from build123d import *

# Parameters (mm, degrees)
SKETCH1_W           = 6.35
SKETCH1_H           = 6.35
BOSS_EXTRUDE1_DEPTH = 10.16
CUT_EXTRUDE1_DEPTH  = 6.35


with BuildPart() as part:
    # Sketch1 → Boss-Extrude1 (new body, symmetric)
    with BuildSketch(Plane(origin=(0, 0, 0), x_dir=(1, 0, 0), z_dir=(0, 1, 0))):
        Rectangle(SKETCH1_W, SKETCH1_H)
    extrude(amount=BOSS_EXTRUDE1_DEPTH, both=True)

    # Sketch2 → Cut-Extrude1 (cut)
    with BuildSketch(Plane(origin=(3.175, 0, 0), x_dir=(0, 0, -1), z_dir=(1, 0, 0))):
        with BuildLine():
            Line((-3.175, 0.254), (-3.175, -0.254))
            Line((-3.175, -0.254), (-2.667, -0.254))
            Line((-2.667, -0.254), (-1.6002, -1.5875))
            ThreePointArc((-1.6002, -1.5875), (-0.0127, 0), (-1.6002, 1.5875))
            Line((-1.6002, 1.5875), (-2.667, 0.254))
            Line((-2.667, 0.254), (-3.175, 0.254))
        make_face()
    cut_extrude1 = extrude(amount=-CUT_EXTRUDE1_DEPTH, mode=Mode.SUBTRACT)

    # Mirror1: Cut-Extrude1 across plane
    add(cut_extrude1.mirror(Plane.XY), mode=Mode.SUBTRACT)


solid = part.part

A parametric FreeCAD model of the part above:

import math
import FreeCAD as App
import Part
import Sketcher
from FreeCAD import Vector
Q = App.Units.Quantity


def add_polygon(sketch, points):
    """Adds a closed chain of lines whose ends are joined by coincident constraints."""
    first, n = sketch.GeometryCount, len(points)
    for a, b in zip(points, points[1:] + points[:1]):
        sketch.addGeometry(Part.LineSegment(App.Vector(*a, 0), App.Vector(*b, 0)), False)
    for i in range(n):
        sketch.addConstraint(Sketcher.Constraint("Coincident", first + i, 2, first + (i + 1) % n, 1))

doc = App.newDocument("Part")
body = doc.addObject("PartDesign::Body", "Body")

# Sketch on XZ plane
sketch1 = doc.addObject("Sketcher::SketchObject", "Sketch")
body.addObject(sketch1)
sketch1.AttachmentSupport = (doc.XZ_Plane, [""])
sketch1.MapMode = "FlatFace"
add_polygon(sketch1, [(-3, -3), (-3, 3), (3, 3), (3, -3)])  # lines 0-3
sketch1.addConstraint([
    Sketcher.Constraint("Vertical", 0),
    Sketcher.Constraint("Horizontal", 1),
    Sketcher.Constraint("Vertical", 2),
    Sketcher.Constraint("Horizontal", 3),
    Sketcher.Constraint("Symmetric", 0, 2, 2, 2, -1, 1),
    Sketcher.Constraint("Equal", 3, 0),
    Sketcher.Constraint("DistanceX", 1, 1, 1, 2, Q("0.25 in")),
])
pad1 = doc.addObject("PartDesign::Pad", "Pad")
body.addObject(pad1)
pad1.Profile = sketch1
pad1.Length = Q("0.8 in")
pad1.Midplane = True

# Sketch on YZ plane
sketch2 = doc.addObject("Sketcher::SketchObject", "Sketch001")
body.addObject(sketch2)
sketch2.AttachmentSupport = (doc.YZ_Plane, [""])
sketch2.MapMode = "FlatFace"
sketch2.AttachmentOffset = App.Placement(Vector(0, 0, 0.125 * 25.4), App.Rotation())
sketch2.addGeometry([
    Part.LineSegment(Vector(0.3, 3.2, 0), Vector(-0.3, 3.2, 0)),  # 0
    Part.LineSegment(Vector(-0.3, 3.2, 0), Vector(-0.3, 2.7, 0)),  # 1
    Part.LineSegment(Vector(-0.3, 2.7, 0), Vector(-1.6, 1.6, 0)),  # 2
    Part.ArcOfCircle(Part.Circle(Vector(0, 1.6, 0), Vector(0, 0, 1), 1.6), math.radians(180), math.radians(360)),  # 3
    Part.LineSegment(Vector(1.6, 1.6, 0), Vector(0.3, 2.7, 0)),  # 4
    Part.LineSegment(Vector(0.3, 2.7, 0), Vector(0.3, 3.2, 0)),  # 5
], False)
sketch2.addConstraint([
    Sketcher.Constraint("Coincident", 0, 2, 1, 1),
    Sketcher.Constraint("Coincident", 1, 2, 2, 1),
    Sketcher.Constraint("Coincident", 2, 2, 3, 1),
    Sketcher.Constraint("Coincident", 3, 2, 4, 1),
    Sketcher.Constraint("Coincident", 4, 2, 5, 1),
    Sketcher.Constraint("Coincident", 5, 2, 0, 1),
    Sketcher.Constraint("Horizontal", 0),
    Sketcher.Constraint("Vertical", 1),
    Sketcher.Constraint("Vertical", 5),
    Sketcher.Constraint("Symmetric", 2, 2, 3, 2, -2),
    Sketcher.Constraint("Symmetric", 1, 2, 4, 2, -2),
    Sketcher.Constraint("Horizontal", 3, 3, 2, 2),
    Sketcher.Constraint("Equal", 0, 1),
    Sketcher.Constraint("Radius", 3, Q("0.0625 in")),
    Sketcher.Constraint("DistanceX", 0, 2, 0, 1, Q("0.02 in")),
    Sketcher.Constraint("DistanceY", -1, 1, 3, 3, Q("0.063 in")),
    Sketcher.Constraint("DistanceY", -1, 1, 0, 2, Q("0.125 in")),
])
pocket1 = doc.addObject("PartDesign::Pocket", "Pocket")
body.addObject(pocket1)
pocket1.Profile = sketch2
pocket1.Length = Q("0.25 in")
doc.recompute()

mirrored = doc.addObject("PartDesign::Mirrored", "Mirrored")
body.addObject(mirrored)
mirrored.Originals = [pocket1]
mirrored.MirrorPlane = (doc.XY_Plane, [""])
body.Tip = mirrored

doc.recompute()
